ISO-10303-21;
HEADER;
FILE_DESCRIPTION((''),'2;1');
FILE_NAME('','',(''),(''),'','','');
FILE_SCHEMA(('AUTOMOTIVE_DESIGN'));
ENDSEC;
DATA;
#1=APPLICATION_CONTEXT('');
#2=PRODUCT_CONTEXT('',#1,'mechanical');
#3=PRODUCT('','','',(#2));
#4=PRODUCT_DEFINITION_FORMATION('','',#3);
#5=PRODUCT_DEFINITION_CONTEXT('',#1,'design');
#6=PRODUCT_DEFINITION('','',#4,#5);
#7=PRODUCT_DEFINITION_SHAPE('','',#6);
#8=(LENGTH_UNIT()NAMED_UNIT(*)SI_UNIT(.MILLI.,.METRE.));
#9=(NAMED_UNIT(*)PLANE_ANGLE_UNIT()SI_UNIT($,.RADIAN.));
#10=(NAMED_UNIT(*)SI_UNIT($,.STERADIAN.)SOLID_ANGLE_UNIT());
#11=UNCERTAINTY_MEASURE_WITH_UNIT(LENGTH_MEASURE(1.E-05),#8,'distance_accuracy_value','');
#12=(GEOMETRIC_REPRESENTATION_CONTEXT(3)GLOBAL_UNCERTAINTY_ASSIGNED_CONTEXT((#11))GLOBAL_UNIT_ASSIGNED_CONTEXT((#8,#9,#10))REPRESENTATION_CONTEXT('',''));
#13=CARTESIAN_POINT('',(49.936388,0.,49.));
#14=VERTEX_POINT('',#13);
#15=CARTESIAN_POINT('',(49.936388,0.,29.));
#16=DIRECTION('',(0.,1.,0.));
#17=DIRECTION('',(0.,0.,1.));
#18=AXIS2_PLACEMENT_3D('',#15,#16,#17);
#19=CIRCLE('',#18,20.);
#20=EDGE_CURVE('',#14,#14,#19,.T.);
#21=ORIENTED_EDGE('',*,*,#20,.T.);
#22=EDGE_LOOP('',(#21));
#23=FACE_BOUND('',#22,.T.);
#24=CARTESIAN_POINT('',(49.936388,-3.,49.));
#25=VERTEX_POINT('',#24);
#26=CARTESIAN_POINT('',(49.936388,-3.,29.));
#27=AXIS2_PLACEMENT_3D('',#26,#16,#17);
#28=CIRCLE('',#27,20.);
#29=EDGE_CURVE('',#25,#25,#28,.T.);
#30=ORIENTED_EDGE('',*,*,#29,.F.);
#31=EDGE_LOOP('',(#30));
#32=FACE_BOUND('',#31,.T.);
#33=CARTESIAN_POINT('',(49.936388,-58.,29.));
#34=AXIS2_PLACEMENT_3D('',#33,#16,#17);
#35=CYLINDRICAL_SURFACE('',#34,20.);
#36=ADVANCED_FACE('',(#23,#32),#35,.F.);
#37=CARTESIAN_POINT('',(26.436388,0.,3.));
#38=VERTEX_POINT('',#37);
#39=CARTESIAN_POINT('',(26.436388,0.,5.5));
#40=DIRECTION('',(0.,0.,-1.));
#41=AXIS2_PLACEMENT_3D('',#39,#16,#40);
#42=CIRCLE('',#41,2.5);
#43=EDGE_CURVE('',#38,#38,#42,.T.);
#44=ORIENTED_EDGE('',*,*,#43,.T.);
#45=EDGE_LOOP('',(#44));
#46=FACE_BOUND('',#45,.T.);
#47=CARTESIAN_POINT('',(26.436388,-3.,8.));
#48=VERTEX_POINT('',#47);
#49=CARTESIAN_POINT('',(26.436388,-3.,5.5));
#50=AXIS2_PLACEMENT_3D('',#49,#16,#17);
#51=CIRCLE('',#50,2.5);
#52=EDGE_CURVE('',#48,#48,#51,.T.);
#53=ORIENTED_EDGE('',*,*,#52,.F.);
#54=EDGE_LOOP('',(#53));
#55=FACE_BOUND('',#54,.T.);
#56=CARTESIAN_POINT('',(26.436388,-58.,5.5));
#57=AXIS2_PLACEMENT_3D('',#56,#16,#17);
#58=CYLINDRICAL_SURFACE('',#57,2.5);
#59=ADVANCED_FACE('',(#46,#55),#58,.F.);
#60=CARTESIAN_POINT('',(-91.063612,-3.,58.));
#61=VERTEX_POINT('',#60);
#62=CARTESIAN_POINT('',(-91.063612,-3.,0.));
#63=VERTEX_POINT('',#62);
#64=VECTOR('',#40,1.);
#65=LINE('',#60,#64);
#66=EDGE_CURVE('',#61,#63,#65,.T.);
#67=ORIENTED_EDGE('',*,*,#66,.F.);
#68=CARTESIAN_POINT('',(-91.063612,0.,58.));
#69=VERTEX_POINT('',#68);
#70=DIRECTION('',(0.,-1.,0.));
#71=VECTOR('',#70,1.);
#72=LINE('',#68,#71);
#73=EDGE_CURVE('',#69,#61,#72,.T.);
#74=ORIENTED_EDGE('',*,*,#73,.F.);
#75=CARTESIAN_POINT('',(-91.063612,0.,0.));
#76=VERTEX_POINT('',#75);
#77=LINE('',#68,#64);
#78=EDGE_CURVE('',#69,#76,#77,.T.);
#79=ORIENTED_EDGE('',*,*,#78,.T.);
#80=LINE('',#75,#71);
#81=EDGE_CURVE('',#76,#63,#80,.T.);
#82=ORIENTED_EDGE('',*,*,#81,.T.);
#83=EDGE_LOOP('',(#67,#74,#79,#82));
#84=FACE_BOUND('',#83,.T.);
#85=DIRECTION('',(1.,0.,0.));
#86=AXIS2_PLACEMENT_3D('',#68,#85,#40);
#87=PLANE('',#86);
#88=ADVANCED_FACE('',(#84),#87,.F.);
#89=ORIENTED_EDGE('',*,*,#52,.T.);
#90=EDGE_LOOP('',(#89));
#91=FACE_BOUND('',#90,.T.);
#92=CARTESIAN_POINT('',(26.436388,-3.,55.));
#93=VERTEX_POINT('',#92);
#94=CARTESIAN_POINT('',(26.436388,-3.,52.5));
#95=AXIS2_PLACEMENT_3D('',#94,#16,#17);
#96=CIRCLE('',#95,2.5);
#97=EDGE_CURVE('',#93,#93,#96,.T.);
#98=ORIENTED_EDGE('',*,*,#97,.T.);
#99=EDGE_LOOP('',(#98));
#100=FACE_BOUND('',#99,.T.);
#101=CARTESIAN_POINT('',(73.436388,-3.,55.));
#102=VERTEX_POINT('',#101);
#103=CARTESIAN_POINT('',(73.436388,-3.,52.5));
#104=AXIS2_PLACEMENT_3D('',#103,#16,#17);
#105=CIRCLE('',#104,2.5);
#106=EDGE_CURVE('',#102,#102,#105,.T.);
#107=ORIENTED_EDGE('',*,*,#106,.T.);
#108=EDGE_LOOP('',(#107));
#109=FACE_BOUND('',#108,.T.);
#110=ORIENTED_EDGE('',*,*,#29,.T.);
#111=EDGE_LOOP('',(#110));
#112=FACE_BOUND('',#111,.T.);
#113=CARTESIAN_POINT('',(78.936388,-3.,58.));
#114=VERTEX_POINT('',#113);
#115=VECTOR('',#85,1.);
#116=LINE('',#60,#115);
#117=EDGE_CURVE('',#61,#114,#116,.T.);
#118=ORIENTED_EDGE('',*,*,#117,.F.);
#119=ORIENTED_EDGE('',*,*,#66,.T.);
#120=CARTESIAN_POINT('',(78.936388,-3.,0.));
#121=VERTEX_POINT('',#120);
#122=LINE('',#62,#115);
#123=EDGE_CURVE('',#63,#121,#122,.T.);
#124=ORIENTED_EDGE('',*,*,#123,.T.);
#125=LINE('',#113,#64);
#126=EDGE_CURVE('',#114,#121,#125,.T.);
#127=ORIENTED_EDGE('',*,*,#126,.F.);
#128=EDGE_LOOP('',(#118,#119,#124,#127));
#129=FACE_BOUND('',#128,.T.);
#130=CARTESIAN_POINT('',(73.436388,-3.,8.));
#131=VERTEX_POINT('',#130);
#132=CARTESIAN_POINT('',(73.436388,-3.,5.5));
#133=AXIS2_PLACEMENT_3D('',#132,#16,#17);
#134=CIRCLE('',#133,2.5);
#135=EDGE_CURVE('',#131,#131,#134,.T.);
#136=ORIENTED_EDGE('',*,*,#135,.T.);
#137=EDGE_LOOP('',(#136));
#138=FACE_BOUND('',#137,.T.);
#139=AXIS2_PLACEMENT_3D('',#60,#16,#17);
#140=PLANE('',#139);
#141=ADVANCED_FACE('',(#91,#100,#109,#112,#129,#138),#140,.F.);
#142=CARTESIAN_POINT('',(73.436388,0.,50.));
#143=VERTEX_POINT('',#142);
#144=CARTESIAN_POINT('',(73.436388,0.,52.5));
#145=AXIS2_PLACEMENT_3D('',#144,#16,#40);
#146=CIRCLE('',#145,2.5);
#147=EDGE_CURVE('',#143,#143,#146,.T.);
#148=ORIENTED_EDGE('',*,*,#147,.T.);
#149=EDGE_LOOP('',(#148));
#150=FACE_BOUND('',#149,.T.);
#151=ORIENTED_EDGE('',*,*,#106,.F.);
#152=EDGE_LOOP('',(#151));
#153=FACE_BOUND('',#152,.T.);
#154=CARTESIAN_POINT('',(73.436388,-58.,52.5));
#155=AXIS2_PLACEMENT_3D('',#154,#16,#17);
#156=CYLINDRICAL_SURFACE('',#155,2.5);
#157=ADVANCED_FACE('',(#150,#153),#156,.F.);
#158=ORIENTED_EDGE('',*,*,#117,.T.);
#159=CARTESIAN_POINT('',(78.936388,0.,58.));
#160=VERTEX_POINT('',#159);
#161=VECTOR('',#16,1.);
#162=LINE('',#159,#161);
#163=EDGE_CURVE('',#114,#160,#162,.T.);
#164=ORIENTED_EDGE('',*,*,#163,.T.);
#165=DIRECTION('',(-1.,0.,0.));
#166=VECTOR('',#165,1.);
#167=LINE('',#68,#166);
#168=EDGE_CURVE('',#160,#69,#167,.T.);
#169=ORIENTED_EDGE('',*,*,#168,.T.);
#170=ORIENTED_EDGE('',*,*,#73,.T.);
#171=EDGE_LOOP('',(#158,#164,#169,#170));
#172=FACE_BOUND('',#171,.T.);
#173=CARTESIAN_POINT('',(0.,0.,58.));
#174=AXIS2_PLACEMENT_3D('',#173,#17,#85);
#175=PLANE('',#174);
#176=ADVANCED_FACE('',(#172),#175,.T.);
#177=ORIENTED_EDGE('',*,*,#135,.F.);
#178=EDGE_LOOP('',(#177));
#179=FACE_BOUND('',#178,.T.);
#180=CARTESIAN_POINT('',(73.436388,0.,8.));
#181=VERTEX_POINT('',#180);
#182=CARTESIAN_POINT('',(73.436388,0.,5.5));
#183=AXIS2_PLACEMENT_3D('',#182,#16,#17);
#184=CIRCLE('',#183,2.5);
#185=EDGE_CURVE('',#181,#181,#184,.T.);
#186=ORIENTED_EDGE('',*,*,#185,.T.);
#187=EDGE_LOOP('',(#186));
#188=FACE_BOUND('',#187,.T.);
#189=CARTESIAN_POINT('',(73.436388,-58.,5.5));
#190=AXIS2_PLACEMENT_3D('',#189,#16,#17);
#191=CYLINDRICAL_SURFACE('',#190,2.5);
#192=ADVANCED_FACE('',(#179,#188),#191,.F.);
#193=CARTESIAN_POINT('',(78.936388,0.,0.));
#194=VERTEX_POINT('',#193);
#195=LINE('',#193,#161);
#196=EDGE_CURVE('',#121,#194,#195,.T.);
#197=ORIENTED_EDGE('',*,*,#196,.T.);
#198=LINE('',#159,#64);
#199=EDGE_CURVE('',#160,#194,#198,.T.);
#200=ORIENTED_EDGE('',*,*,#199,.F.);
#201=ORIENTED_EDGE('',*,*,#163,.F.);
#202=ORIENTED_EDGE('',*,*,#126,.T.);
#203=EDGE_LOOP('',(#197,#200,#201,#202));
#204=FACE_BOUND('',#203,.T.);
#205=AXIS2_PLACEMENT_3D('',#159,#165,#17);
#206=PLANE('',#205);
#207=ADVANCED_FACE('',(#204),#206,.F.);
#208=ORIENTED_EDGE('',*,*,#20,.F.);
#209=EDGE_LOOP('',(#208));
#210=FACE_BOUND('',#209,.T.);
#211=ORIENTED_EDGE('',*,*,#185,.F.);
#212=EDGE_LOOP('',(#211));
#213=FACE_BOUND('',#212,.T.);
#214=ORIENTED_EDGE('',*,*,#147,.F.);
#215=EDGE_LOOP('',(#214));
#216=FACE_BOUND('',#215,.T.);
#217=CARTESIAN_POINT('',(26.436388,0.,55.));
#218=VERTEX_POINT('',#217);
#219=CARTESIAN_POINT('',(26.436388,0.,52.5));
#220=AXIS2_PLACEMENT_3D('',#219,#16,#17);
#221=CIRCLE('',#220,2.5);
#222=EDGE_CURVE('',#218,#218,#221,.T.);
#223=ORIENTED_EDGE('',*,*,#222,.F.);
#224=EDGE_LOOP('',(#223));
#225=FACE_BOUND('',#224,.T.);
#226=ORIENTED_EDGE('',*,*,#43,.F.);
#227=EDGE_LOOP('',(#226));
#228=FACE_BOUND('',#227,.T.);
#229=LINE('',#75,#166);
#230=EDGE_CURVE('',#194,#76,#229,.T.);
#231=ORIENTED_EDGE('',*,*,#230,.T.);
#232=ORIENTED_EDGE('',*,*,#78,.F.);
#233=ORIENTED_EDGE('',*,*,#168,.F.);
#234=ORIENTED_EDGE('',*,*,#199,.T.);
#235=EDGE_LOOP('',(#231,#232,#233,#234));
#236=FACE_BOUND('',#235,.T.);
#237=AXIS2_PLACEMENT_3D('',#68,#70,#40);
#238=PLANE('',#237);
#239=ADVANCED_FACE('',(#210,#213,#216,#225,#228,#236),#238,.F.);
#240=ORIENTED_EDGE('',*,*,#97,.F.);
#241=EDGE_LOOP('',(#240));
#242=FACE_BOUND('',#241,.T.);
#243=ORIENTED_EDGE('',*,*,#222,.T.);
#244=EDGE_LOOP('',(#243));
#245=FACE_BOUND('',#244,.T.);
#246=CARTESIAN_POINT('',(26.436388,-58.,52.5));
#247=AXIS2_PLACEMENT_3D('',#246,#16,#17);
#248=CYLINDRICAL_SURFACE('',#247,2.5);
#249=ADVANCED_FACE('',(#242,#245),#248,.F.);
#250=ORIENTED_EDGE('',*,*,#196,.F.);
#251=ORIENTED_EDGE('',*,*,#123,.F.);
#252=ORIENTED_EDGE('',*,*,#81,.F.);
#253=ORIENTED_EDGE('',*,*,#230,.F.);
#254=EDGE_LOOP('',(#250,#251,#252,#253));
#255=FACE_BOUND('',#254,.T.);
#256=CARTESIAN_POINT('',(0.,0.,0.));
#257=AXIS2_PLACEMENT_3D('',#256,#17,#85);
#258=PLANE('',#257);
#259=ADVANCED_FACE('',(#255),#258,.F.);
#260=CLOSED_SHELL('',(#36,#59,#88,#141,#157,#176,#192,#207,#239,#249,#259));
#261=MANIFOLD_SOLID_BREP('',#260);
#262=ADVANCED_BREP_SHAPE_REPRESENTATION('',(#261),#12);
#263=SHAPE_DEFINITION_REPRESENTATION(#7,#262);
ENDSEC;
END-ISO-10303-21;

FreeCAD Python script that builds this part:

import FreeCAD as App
import Part
import Sketcher

V = App.Vector


def add_polygon(sketch, points):
    """Adds a closed chain of lines whose ends are joined by coincident constraints."""
    first, n = sketch.GeometryCount, len(points)
    for a, b in zip(points, points[1:] + points[:1]):
        sketch.addGeometry(Part.LineSegment(App.Vector(*a, 0), App.Vector(*b, 0)), False)
    for i in range(n):
        sketch.addConstraint(Sketcher.Constraint("Coincident", first + i, 2, first + (i + 1) % n, 1))

doc = App.newDocument("Part")
params = doc.addObject("Spreadsheet::Sheet", "Params")
for row, (alias, value) in enumerate([
    ("sketch1_width", "170 mm"),
    ("sketch1_height", "3 mm"),
    ("pad1_length", "58 mm"),
    ("sketch2_diameter", "5 mm"),
    ("sketch2_diameter2", "40 mm"),
    ("pocket1_length", "58 mm"),
], start=1):
    params.set(f"A{row}", alias)
    params.set(f"B{row}", "=" + value)
    params.setAlias(f"B{row}", alias)

body = doc.addObject("PartDesign::Body", "Body")

sketch1 = body.newObject("Sketcher::SketchObject", "Sketch")
sketch1.AttachmentSupport = (doc.getObject("XY_Plane"), [""])
sketch1.MapMode = "FlatFace"
add_polygon(sketch1, [(-91.1, 0), (-91.1, -3), (78.9, -3), (78.9, 0)])
sketch1.addConstraint(Sketcher.Constraint("Vertical", 0))
sketch1.addConstraint(Sketcher.Constraint("Horizontal", 1))
sketch1.addConstraint(Sketcher.Constraint("Vertical", 2))
sketch1.addConstraint(Sketcher.Constraint("Horizontal", 3))
sketch1.addConstraint(Sketcher.Constraint("PointOnObject", 2, 2, -1))
sketch1.addConstraint(Sketcher.Constraint("DistanceX", 1, 1, 1, 2, 170.0))
sketch1.addConstraint(Sketcher.Constraint("DistanceY", 0, 2, 0, 1, 3.0))
sketch1.addConstraint(Sketcher.Constraint("DistanceX", 0, 2, -1, 1, 91.063612))
sketch1.setExpression("Constraints[9]", "Params.sketch1_width")
sketch1.setExpression("Constraints[10]", "Params.sketch1_height")
pad1 = body.newObject("PartDesign::Pad", "Pad")
pad1.Profile = sketch1
pad1.setExpression("Length", "Params.pad1_length")

sketch2 = body.newObject("Sketcher::SketchObject", "Sketch001")
sketch2.AttachmentSupport = (doc.getObject("XZ_Plane"), [""])
sketch2.MapMode = "FlatFace"
sketch2.addGeometry(Part.Circle(V(73.4, 5.5, 0), V(0, 0, 1), 2.5), False)
sketch2.addGeometry(Part.Circle(V(73.4, 52.5, 0), V(0, 0, 1), 2.5), False)
sketch2.addGeometry(Part.Circle(V(26.4, 52.5, 0), V(0, 0, 1), 2.5), False)
sketch2.addGeometry(Part.Circle(V(26.4, 5.5, 0), V(0, 0, 1), 2.5), False)
sketch2.addGeometry(Part.Circle(V(49.9, 29, 0), V(0, 0, 1), 20), False)
sketch2.addConstraint(Sketcher.Constraint("Equal", 0, 1))
sketch2.addConstraint(Sketcher.Constraint("Equal", 1, 2))
sketch2.addConstraint(Sketcher.Constraint("Equal", 2, 3))
sketch2.addConstraint(Sketcher.Constraint("Horizontal", 1, 3, 2, 3))
sketch2.addConstraint(Sketcher.Constraint("Horizontal", 0, 3, 3, 3))
sketch2.addConstraint(Sketcher.Constraint("Vertical", 0, 3, 1, 3))
sketch2.addConstraint(Sketcher.Constraint("Vertical", 2, 3, 3, 3))
sketch2.addConstraint(Sketcher.Constraint("Diameter", 0, 5.0))
sketch2.addConstraint(Sketcher.Constraint("Diameter", 4, 40.0))
sketch2.addConstraint(Sketcher.Constraint("DistanceY", -1, 1, 4, 3, 29.0))
sketch2.addConstraint(Sketcher.Constraint("DistanceY", 0, 3, 1, 3, 47.0))
sketch2.addConstraint(Sketcher.Constraint("DistanceX", 2, 3, 1, 3, 47.0))
sketch2.addConstraint(Sketcher.Constraint("DistanceY", -1, 1, 0, 3, 5.5))
sketch2.addConstraint(Sketcher.Constraint("DistanceX", 2, 3, 4, 3, 23.5))
sketch2.addConstraint(Sketcher.Constraint("DistanceX", -1, 1, 0, 3, 73.436388))
sketch2.setExpression("Constraints[7]", "Params.sketch2_diameter")
sketch2.setExpression("Constraints[8]", "Params.sketch2_diameter2")
pocket1 = body.newObject("PartDesign::Pocket", "Pocket")
pocket1.Profile = sketch2
pocket1.setExpression("Length", "Params.pocket1_length")
pocket1.Reversed = True

doc.recompute()
